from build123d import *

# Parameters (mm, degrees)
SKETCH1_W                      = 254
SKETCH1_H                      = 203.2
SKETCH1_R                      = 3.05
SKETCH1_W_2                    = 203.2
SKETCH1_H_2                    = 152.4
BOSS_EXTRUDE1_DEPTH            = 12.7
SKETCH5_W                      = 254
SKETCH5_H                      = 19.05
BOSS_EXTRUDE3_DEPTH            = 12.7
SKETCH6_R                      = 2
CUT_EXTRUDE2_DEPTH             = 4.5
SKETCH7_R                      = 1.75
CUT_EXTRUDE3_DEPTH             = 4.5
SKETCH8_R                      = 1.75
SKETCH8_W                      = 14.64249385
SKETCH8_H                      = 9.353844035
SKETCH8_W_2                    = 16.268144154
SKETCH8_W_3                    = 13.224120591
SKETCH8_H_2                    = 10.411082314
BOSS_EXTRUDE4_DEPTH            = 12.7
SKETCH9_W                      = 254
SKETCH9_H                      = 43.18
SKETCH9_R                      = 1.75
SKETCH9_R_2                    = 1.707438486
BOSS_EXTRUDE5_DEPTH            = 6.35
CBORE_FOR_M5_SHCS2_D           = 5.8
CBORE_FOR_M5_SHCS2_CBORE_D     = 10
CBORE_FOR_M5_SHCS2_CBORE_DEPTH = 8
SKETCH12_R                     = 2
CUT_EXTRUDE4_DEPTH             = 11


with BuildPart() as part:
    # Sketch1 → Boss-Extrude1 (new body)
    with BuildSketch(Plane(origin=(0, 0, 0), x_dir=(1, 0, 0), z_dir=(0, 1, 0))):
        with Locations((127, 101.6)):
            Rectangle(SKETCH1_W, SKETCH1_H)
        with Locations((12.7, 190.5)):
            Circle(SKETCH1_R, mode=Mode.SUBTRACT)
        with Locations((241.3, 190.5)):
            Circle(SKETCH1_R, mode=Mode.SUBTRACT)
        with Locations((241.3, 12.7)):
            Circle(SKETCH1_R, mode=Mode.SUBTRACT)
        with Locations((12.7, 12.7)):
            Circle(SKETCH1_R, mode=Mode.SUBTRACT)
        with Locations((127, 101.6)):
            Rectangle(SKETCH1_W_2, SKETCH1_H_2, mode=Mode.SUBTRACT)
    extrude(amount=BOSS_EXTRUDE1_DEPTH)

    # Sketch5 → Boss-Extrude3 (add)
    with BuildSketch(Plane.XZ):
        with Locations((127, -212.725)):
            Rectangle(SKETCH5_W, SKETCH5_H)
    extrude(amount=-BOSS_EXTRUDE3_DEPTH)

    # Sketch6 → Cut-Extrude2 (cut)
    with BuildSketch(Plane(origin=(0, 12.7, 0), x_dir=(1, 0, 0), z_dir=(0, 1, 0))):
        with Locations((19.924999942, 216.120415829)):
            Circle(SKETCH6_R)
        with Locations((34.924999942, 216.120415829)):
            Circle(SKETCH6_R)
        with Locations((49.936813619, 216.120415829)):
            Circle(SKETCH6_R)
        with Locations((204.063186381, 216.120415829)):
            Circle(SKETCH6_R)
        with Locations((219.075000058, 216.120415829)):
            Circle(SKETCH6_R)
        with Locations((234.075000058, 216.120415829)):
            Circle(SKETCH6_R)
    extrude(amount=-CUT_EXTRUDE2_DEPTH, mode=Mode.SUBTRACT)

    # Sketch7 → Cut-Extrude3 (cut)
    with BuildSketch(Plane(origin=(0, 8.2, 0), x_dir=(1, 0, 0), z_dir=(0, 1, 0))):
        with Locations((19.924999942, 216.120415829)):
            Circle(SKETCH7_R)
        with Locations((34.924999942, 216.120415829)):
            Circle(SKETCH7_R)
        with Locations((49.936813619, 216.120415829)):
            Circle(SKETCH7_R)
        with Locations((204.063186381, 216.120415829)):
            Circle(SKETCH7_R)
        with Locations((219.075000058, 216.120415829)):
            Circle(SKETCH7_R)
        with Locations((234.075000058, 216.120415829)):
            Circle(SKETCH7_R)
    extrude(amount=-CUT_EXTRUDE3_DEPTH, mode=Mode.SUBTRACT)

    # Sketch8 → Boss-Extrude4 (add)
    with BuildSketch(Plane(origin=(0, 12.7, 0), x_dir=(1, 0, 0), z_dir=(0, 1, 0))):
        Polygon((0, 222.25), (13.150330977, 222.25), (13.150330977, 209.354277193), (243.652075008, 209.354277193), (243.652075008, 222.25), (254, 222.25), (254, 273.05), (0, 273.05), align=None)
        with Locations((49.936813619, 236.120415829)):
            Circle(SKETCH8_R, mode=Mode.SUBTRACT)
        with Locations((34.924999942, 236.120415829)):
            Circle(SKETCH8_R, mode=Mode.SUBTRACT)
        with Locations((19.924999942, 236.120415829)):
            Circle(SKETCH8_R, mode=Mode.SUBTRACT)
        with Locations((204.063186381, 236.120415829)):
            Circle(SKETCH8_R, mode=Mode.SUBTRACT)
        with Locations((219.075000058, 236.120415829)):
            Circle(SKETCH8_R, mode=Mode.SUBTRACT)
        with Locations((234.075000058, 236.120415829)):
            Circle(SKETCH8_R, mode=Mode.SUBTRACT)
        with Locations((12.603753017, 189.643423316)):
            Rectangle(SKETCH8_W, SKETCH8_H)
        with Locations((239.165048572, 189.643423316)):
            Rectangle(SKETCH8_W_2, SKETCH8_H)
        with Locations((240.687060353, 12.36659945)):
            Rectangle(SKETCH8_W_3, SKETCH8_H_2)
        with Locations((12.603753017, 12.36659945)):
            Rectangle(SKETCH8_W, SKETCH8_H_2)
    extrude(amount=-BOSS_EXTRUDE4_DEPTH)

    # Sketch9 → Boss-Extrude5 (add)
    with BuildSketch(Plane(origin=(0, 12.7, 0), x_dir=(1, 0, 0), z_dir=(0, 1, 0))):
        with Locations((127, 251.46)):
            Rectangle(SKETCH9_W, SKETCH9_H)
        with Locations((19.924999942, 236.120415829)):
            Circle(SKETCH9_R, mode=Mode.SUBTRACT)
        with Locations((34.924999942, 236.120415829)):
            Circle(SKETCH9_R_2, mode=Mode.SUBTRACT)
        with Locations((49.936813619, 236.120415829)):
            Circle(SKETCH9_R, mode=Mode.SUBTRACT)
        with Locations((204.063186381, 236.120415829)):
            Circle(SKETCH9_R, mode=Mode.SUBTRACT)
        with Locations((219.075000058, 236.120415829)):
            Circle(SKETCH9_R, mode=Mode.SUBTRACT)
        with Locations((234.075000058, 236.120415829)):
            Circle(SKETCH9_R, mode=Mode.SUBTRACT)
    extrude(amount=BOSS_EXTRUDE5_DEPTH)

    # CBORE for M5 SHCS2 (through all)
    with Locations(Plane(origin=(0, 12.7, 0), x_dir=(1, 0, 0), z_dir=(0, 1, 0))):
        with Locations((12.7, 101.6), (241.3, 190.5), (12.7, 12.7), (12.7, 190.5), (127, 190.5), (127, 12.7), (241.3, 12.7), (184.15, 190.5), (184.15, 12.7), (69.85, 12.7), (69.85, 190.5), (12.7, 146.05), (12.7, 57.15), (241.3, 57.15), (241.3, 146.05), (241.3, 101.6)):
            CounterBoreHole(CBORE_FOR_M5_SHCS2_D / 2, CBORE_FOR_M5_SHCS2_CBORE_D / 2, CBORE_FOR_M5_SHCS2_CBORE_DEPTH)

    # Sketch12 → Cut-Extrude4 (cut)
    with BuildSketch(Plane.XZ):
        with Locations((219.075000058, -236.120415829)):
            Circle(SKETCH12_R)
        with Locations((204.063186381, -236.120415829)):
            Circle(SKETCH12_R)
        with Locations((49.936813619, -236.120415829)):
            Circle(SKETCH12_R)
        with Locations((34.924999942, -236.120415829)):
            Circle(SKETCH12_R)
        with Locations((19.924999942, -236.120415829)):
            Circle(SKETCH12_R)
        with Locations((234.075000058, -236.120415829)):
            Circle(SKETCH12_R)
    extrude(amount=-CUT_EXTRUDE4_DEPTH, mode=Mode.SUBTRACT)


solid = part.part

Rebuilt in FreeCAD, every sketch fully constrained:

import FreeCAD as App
import Part
import Sketcher
Q = App.Units.Quantity


def add_polygon(sketch, points):
    """Adds a closed chain of lines whose ends are joined by coincident constraints."""
    first, n = sketch.GeometryCount, len(points)
    for a, b in zip(points, points[1:] + points[:1]):
        sketch.addGeometry(Part.LineSegment(App.Vector(*a, 0), App.Vector(*b, 0)), False)
    for i in range(n):
        sketch.addConstraint(Sketcher.Constraint("Coincident", first + i, 2, first + (i + 1) % n, 1))

doc = App.newDocument("Part")
params = doc.addObject("Spreadsheet::Sheet", "Params")
for row, (alias, value) in enumerate([
    ("sketch1_width", "10 in"),
    ("sketch1_width2", "8 in"),
    ("sketch1_height", "6 in"),
    ("pad1_length", "0.5 in"),
    ("sketch2_width", "10 in"),
    ("sketch2_height", "0.75 in"),
    ("pad2_length", "0.5 in"),
    ("pocket1_length", "4.5 mm"),
    ("pocket2_length", "4.5 mm"),
    ("sketch5_width", "10 in"),
    ("sketch5_height", "2 in"),
    ("pad3_length", "0.5 in"),
    ("sketch6_width", "10 in"),
    ("sketch6_height", "1.7 in"),
    ("pad4_length", "0.25 in"),
    ("hole_diameter", "5.8 mm"),
    ("hole_cbore_diameter", "10 mm"),
    ("hole_cbore_depth", "8 mm"),
    ("pocket3_length", "11 mm"),
], start=1):
    params.set(f"A{row}", alias)
    params.set(f"B{row}", "=" + value)
    params.setAlias(f"B{row}", alias)

body = doc.addObject("PartDesign::Body", "Body")

sketch1 = doc.addObject("Sketcher::SketchObject", "Sketch")
body.addObject(sketch1)
sketch1.AttachmentSupport = (doc.XZ_Plane, [""])
sketch1.MapMode = "FlatFace"
add_polygon(sketch1, [(0, -203.2), (0, 0), (254, 0), (254, -203.2)])
sketch1.addGeometry(Part.Circle(App.Vector(12.7, -12.7, 0), App.Vector(0, 0, 1), 3), False)
sketch1.addGeometry(Part.Circle(App.Vector(241.3, -12.7, 0), App.Vector(0, 0, 1), 3), False)
sketch1.addGeometry(Part.Circle(App.Vector(12.7, -190.5, 0), App.Vector(0, 0, 1), 3), False)
add_polygon(sketch1, [(228.6, -25.4), (25.4, -25.4), (25.4, -177.8), (228.6, -177.8)])
sketch1.addGeometry(Part.Circle(App.Vector(241.3, -190.5, 0), App.Vector(0, 0, 1), 3), False)
sketch1.addConstraint([
    Sketcher.Constraint("Vertical", 0),
    Sketcher.Constraint("Horizontal", 1),
    Sketcher.Constraint("Vertical", 2),
    Sketcher.Constraint("Horizontal", 3),
    Sketcher.Constraint("Horizontal", 7),
    Sketcher.Constraint("Vertical", 8),
    Sketcher.Constraint("Horizontal", 9),
    Sketcher.Constraint("Vertical", 10),
    Sketcher.Constraint("Coincident", 0, 2, -1, 1),
    Sketcher.Constraint("Equal", 4, 5),
    Sketcher.Constraint("Equal", 5, 6),
    Sketcher.Constraint("Equal", 6, 11),
    Sketcher.Constraint("Horizontal", 4, 3, 5, 3),
    Sketcher.Constraint("Horizontal", 6, 3, 11, 3),
    Sketcher.Constraint("Vertical", 4, 3, 6, 3),
    Sketcher.Constraint("Vertical", 5, 3, 11, 3),
    Sketcher.Constraint("Equal", 9, 0),
    Sketcher.Constraint("DistanceX", 1, 1, 1, 2, Q("10 in")),
    Sketcher.Constraint("DistanceX", 7, 2, 7, 1, Q("8 in")),
    Sketcher.Constraint("DistanceY", 8, 2, 8, 1, Q("6 in")),
    Sketcher.Constraint("DistanceX", -1, 1, 7, 2, Q("1 in")),
    Sketcher.Constraint("DistanceY", 7, 2, -1, 1, Q("1 in")),
    Sketcher.Constraint("DistanceX", 4, 3, 5, 3, Q("9 in")),
    Sketcher.Constraint("DistanceY", 6, 3, 4, 3, Q("7 in")),
    Sketcher.Constraint("DistanceX", -1, 1, 4, 3, Q("0.5 in")),
    Sketcher.Constraint("DistanceY", 4, 3, -1, 1, Q("0.5 in")),
    Sketcher.Constraint("Diameter", 4, 6.1),
])
sketch1.setExpression("Constraints[25]", "Params.sketch1_width")
sketch1.setExpression("Constraints[26]", "Params.sketch1_width2")
sketch1.setExpression("Constraints[27]", "Params.sketch1_height")
pad1 = doc.addObject("PartDesign::Pad", "Pad")
body.addObject(pad1)
pad1.Profile = sketch1
pad1.setExpression("Length", "Params.pad1_length")
pad1.Reversed = True

sketch2 = doc.addObject("Sketcher::SketchObject", "Sketch001")
body.addObject(sketch2)
sketch2.AttachmentSupport = (doc.XZ_Plane, [""])
sketch2.MapMode = "FlatFace"
add_polygon(sketch2, [(0, -203), (0, -222), (254, -222), (254, -203)])
sketch2.addConstraint([
    Sketcher.Constraint("Vertical", 0),
    Sketcher.Constraint("Horizontal", 1),
    Sketcher.Constraint("Vertical", 2),
    Sketcher.Constraint("Horizontal", 3),
    Sketcher.Constraint("PointOnObject", 0, 2, -2),
    Sketcher.Constraint("DistanceX", 1, 1, 1, 2, Q("10 in")),
    Sketcher.Constraint("DistanceY", 2, 2, -1, 1, Q("8 in")),
    Sketcher.Constraint("DistanceY", 0, 2, 0, 1, Q("0.75 in")),
])
sketch2.setExpression("Constraints[9]", "Params.sketch2_width")
sketch2.setExpression("Constraints[11]", "Params.sketch2_height")
pad2 = doc.addObject("PartDesign::Pad", "Pad001")
body.addObject(pad2)
pad2.Profile = sketch2
pad2.setExpression("Length", "Params.pad2_length")
pad2.Reversed = True

sketch3 = doc.addObject("Sketcher::SketchObject", "Sketch002")
body.addObject(sketch3)
sketch3.AttachmentSupport = (doc.XZ_Plane, [""])
sketch3.MapMode = "FlatFace"
sketch3.AttachmentOffset = App.Placement(App.Vector(0, 0, -0.5 * 25.4), App.Rotation())
sketch3.addGeometry([
    Part.Circle(App.Vector(19.9, -216.1, 0), App.Vector(0, 0, 1), 2),
    Part.Circle(App.Vector(34.9, -216.1, 0), App.Vector(0, 0, 1), 2),
    Part.Circle(App.Vector(49.9, -216.1, 0), App.Vector(0, 0, 1), 2),
    Part.Circle(App.Vector(204.1, -216.1, 0), App.Vector(0, 0, 1), 2),
    Part.Circle(App.Vector(219.1, -216.1, 0), App.Vector(0, 0, 1), 2),
    Part.Circle(App.Vector(234.1, -216.1, 0), App.Vector(0, 0, 1), 2),
], False)
sketch3.addConstraint([
    Sketcher.Constraint("Equal", 0, 1),
    Sketcher.Constraint("Equal", 1, 2),
    Sketcher.Constraint("Equal", 2, 3),
    Sketcher.Constraint("Equal", 3, 4),
    Sketcher.Constraint("Equal", 4, 5),
    Sketcher.Constraint("Horizontal", 0, 3, 1, 3),
    Sketcher.Constraint("Horizontal", 1, 3, 2, 3),
    Sketcher.Constraint("Horizontal", 2, 3, 3, 3),
    Sketcher.Constraint("Horizontal", 3, 3, 4, 3),
    Sketcher.Constraint("Horizontal", 4, 3, 5, 3),
    Sketcher.Constraint("Diameter", 0, 4.0),
    Sketcher.Constraint("DistanceX", 1, 3, 4, 3, Q("7.25 in")),
    Sketcher.Constraint("DistanceX", -1, 1, 1, 3, Q("1.375 in")),
    Sketcher.Constraint("DistanceX", -1, 1, 0, 3, 19.925),
    Sketcher.Constraint("DistanceX", -1, 1, 5, 3, 234.075),
    Sketcher.Constraint("DistanceY", 0, 3, -1, 1, 216.120416),
    Sketcher.Constraint("DistanceX", -1, 1, 2, 3, 49.936814),
    Sketcher.Constraint("DistanceX", -1, 1, 3, 3, 204.063186),
])
pocket1 = doc.addObject("PartDesign::Pocket", "Pocket")
body.addObject(pocket1)
pocket1.Profile = sketch3
pocket1.setExpression("Length", "Params.pocket1_length")
pocket1.Reversed = True

sketch4 = doc.addObject("Sketcher::SketchObject", "Sketch003")
body.addObject(sketch4)
sketch4.AttachmentSupport = (doc.XZ_Plane, [""])
sketch4.MapMode = "FlatFace"
sketch4.AttachmentOffset = App.Placement(App.Vector(0, 0, -8.2), App.Rotation())
sketch4.addGeometry([
    Part.Circle(App.Vector(19.9, -216.1, 0), App.Vector(0, 0, 1), 1.8),
    Part.Circle(App.Vector(34.9, -216.1, 0), App.Vector(0, 0, 1), 1.8),
    Part.Circle(App.Vector(49.9, -216.1, 0), App.Vector(0, 0, 1), 1.8),
    Part.Circle(App.Vector(204.1, -216.1, 0), App.Vector(0, 0, 1), 1.8),
    Part.Circle(App.Vector(219.1, -216.1, 0), App.Vector(0, 0, 1), 1.8),
    Part.Circle(App.Vector(234.1, -216.1, 0), App.Vector(0, 0, 1), 1.8),
], False)
sketch4.addConstraint([
    Sketcher.Constraint("Equal", 0, 1),
    Sketcher.Constraint("Equal", 1, 2),
    Sketcher.Constraint("Equal", 2, 3),
    Sketcher.Constraint("Equal", 3, 4),
    Sketcher.Constraint("Equal", 4, 5),
    Sketcher.Constraint("Horizontal", 0, 3, 1, 3),
    Sketcher.Constraint("Horizontal", 1, 3, 2, 3),
    Sketcher.Constraint("Horizontal", 2, 3, 3, 3),
    Sketcher.Constraint("Horizontal", 3, 3, 4, 3),
    Sketcher.Constraint("Horizontal", 4, 3, 5, 3),
    Sketcher.Constraint("Diameter", 0, 3.5),
    Sketcher.Constraint("DistanceX", 1, 3, 4, 3, Q("7.25 in")),
    Sketcher.Constraint("DistanceX", -1, 1, 1, 3, Q("1.375 in")),
    Sketcher.Constraint("DistanceX", -1, 1, 0, 3, 19.925),
    Sketcher.Constraint("DistanceX", -1, 1, 5, 3, 234.075),
    Sketcher.Constraint("DistanceY", 0, 3, -1, 1, 216.120416),
    Sketcher.Constraint("DistanceX", -1, 1, 2, 3, 49.936814),
    Sketcher.Constraint("DistanceX", -1, 1, 3, 3, 204.063186),
])
pocket2 = doc.addObject("PartDesign::Pocket", "Pocket001")
body.addObject(pocket2)
pocket2.Profile = sketch4
pocket2.setExpression("Length", "Params.pocket2_length")
pocket2.Reversed = True

sketch5 = doc.addObject("Sketcher::SketchObject", "Sketch004")
body.addObject(sketch5)
sketch5.AttachmentSupport = (doc.XZ_Plane, [""])
sketch5.MapMode = "FlatFace"
sketch5.AttachmentOffset = App.Placement(App.Vector(0, 0, -0.5 * 25.4), App.Rotation())
add_polygon(sketch5, [(0, -222.2), (13.2, -222.2), (13.2, -209.4), (243.7, -209.4), (243.7, -222.2), (254, -222.2), (254, -273.1), (0, -273.1)])
sketch5.addGeometry(Part.Circle(App.Vector(19.9, -236.1, 0), App.Vector(0, 0, 1), 1.8), False)
sketch5.addGeometry(Part.Circle(App.Vector(34.9, -236.1, 0), App.Vector(0, 0, 1), 1.8), False)
sketch5.addGeometry(Part.Circle(App.Vector(49.9, -236.1, 0), App.Vector(0, 0, 1), 1.8), False)
sketch5.addGeometry(Part.Circle(App.Vector(204.1, -236.1, 0), App.Vector(0, 0, 1), 1.8), False)
sketch5.addGeometry(Part.Circle(App.Vector(219.1, -236.1, 0), App.Vector(0, 0, 1), 1.8), False)
sketch5.addGeometry(Part.Circle(App.Vector(234.1, -236.1, 0), App.Vector(0, 0, 1), 1.8), False)
add_polygon(sketch5, [(5.3, -194.3), (5.3, -185), (19.9, -185), (19.9, -194.3)])
add_polygon(sketch5, [(231, -194.3), (231, -185), (247.3, -185), (247.3, -194.3)])
add_polygon(sketch5, [(234.1, -17.6), (234.1, -7.2), (247.3, -7.2), (247.3, -17.6)])
add_polygon(sketch5, [(5.3, -17.6), (5.3, -7.2), (19.9, -7.2), (19.9, -17.6)])
sketch5.addConstraint([
    Sketcher.Constraint("Horizontal", 0),
    Sketcher.Constraint("Vertical", 1),
    Sketcher.Constraint("Horizontal", 2),
    Sketcher.Constraint("Vertical", 3),
    Sketcher.Constraint("Horizontal", 4),
    Sketcher.Constraint("Vertical", 5),
    Sketcher.Constraint("Horizontal", 6),
    Sketcher.Constraint("Vertical", 7),
    Sketcher.Constraint("Vertical", 14),
    Sketcher.Constraint("Horizontal", 15),
    Sketcher.Constraint("Vertical", 16),
    Sketcher.Constraint("Horizontal", 17),
    Sketcher.Constraint("Vertical", 18),
    Sketcher.Constraint("Horizontal", 19),
    Sketcher.Constraint("Vertical", 20),
    Sketcher.Constraint("Horizontal", 21),
    Sketcher.Constraint("Vertical", 22),
    Sketcher.Constraint("Horizontal", 23),
    Sketcher.Constraint("Vertical", 24),
    Sketcher.Constraint("Horizontal", 25),
    Sketcher.Constraint("Vertical", 26),
    Sketcher.Constraint("Horizontal", 27),
    Sketcher.Constraint("Vertical", 28),
    Sketcher.Constraint("Horizontal", 29),
    Sketcher.Constraint("Equal", 8, 9),
    Sketcher.Constraint("Equal", 9, 10),
    Sketcher.Constraint("Equal", 10, 11),
    Sketcher.Constraint("Equal", 11, 12),
    Sketcher.Constraint("Equal", 12, 13),
    Sketcher.Constraint("PointOnObject", 6, 2, -2),
    Sketcher.Constraint("Horizontal", 8, 3, 9, 3),
    Sketcher.Constraint("Horizontal", 9, 3, 10, 3),
    Sketcher.Constraint("Horizontal", 10, 3, 11, 3),
    Sketcher.Constraint("Horizontal", 11, 3, 12, 3),
    Sketcher.Constraint("Horizontal", 12, 3, 13, 3),
    Sketcher.Constraint("Horizontal", 0, 2, 3, 2),
    Sketcher.Constraint("Horizontal", 15, 2, 18, 2),
    Sketcher.Constraint("Horizontal", 17, 2, 20, 2),
    Sketcher.Constraint("Horizontal", 23, 2, 26, 2),
    Sketcher.Constraint("Horizontal", 25, 2, 28, 2),
    Sketcher.Constraint("Vertical", 8, 3, 15, 2),
    Sketcher.Constraint("Vertical", 13, 3, 22, 2),
    Sketcher.Constraint("Vertical", 20, 2, 23, 2),
    Sketcher.Constraint("Vertical", 17, 2, 26, 2),
    Sketcher.Constraint("Vertical", 16, 2, 27, 2),
    Sketcher.Constraint("DistanceX", 6, 2, 6, 1, Q("10 in")),
    Sketcher.Constraint("DistanceY", 5, 2, 5, 1, Q("2 in")),
    Sketcher.Constraint("Diameter", 8, 3.5),
    Sketcher.Constraint("DistanceY", 0, 2, -1, 1, Q("8.75 in")),
    Sketcher.Constraint("DistanceX", 9, 3, 12, 3, Q("7.25 in")),
    Sketcher.Constraint("DistanceX", -1, 1, 9, 3, Q("1.375 in")),
    Sketcher.Constraint("DistanceX", 0, 1, 0, 2, 13.150331),
    Sketcher.Constraint("DistanceX", 23, 1, 23, 2, 13.224121),
    Sketcher.Constraint("DistanceX", -1, 1, 8, 3, 19.925),
    Sketcher.Constraint("DistanceX", -1, 1, 13, 3, 234.075),
    Sketcher.Constraint("DistanceY", 14, 2, -1, 1, 184.966501),
    Sketcher.Constraint("DistanceX", 18, 2, 2, 2, 12.621099),
    Sketcher.Constraint("DistanceX", 2, 1, 2, 2, 230.501744),
    Sketcher.Constraint("DistanceX", 15, 1, 15, 2, 14.642494),
    Sketcher.Constraint("DistanceY", 1, 1, 1, 2, 12.895723),
    Sketcher.Constraint("DistanceY", 14, 1, 14, 2, 9.353844),
    Sketcher.Constraint("DistanceY", 22, 1, 22, 2, 10.411082),
    Sketcher.Constraint("DistanceY", 22, 2, -1, 1, 7.161058),
    Sketcher.Constraint("DistanceY", 8, 3, 1, 2, 26.766139),
    Sketcher.Constraint("DistanceX", 11, 3, 2, 2, 39.588889),
    Sketcher.Constraint("DistanceX", 10, 3, 2, 2, 193.715261),
])
sketch5.setExpression("Constraints[69]", "Params.sketch5_width")
sketch5.setExpression("Constraints[70]", "Params.sketch5_height")
pad3 = doc.addObject("PartDesign::Pad", "Pad002")
body.addObject(pad3)
pad3.Profile = sketch5
pad3.setExpression("Length", "Params.pad3_length")

sketch6 = doc.addObject("Sketcher::SketchObject", "Sketch005")
body.addObject(sketch6)
sketch6.AttachmentSupport = (doc.XZ_Plane, [""])
sketch6.MapMode = "FlatFace"
sketch6.AttachmentOffset = App.Placement(App.Vector(0, 0, -0.5 * 25.4), App.Rotation())
add_polygon(sketch6, [(0, -273.1), (0, -229.9), (254, -229.9), (254, -273.1)])
sketch6.addGeometry(Part.Circle(App.Vector(19.9, -236.1, 0), App.Vector(0, 0, 1), 1.8), False)
sketch6.addGeometry(Part.Circle(App.Vector(34.9, -236.1, 0), App.Vector(0, 0, 1), 1.7), False)
sketch6.addGeometry(Part.Circle(App.Vector(49.9, -236.1, 0), App.Vector(0, 0, 1), 1.8), False)
sketch6.addGeometry(Part.Circle(App.Vector(204.1, -236.1, 0), App.Vector(0, 0, 1), 1.8), False)
sketch6.addGeometry(Part.Circle(App.Vector(219.1, -236.1, 0), App.Vector(0, 0, 1), 1.8), False)
sketch6.addGeometry(Part.Circle(App.Vector(234.1, -236.1, 0), App.Vector(0, 0, 1), 1.8), False)
sketch6.addConstraint([
    Sketcher.Constraint("Vertical", 0),
    Sketcher.Constraint("Horizontal", 1),
    Sketcher.Constraint("Vertical", 2),
    Sketcher.Constraint("Horizontal", 3),
    Sketcher.Constraint("Equal", 4, 6),
    Sketcher.Constraint("Equal", 6, 7),
    Sketcher.Constraint("Equal", 7, 8),
    Sketcher.Constraint("Equal", 8, 9),
    Sketcher.Constraint("PointOnObject", 0, 2, -2),
    Sketcher.Constraint("Horizontal", 4, 3, 5, 3),
    Sketcher.Constraint("Horizontal", 5, 3, 6, 3),
    Sketcher.Constraint("Horizontal", 6, 3, 7, 3),
    Sketcher.Constraint("Horizontal", 7, 3, 8, 3),
    Sketcher.Constraint("Horizontal", 8, 3, 9, 3),
    Sketcher.Constraint("DistanceX", 1, 1, 1, 2, Q("10 in")),
    Sketcher.Constraint("DistanceY", 0, 1, 0, 2, Q("1.7 in")),
    Sketcher.Constraint("Diameter", 4, 3.5),
    Sketcher.Constraint("DistanceY", 0, 2, -1, 1, Q("9.05 in")),
    Sketcher.Constraint("DistanceX", 5, 3, 8, 3, Q("7.25 in")),
    Sketcher.Constraint("DistanceX", -1, 1, 5, 3, Q("1.375 in")),
    Sketcher.Constraint("Diameter", 5, 3.414877),
    Sketcher.Constraint("DistanceX", -1, 1, 4, 3, 19.925),
    Sketcher.Constraint("DistanceX", -1, 1, 9, 3, 234.075),
    Sketcher.Constraint("DistanceY", 4, 3, -1, 1, 236.120416),
    Sketcher.Constraint("DistanceX", -1, 1, 6, 3, 49.936814),
    Sketcher.Constraint("DistanceX", -1, 1, 7, 3, 204.063186),
])
sketch6.setExpression("Constraints[18]", "Params.sketch6_width")
sketch6.setExpression("Constraints[19]", "Params.sketch6_height")
pad4 = doc.addObject("PartDesign::Pad", "Pad003")
body.addObject(pad4)
pad4.Profile = sketch6
pad4.setExpression("Length", "Params.pad4_length")
pad4.Reversed = True

sketch7 = doc.addObject("Sketcher::SketchObject", "Sketch006")
body.addObject(sketch7)
sketch7.AttachmentSupport = (doc.XZ_Plane, [""])
sketch7.MapMode = "FlatFace"
sketch7.AttachmentOffset = App.Placement(App.Vector(0, 0, -0.5 * 25.4), App.Rotation())
sketch7.addGeometry([
    Part.Circle(App.Vector(12.7, -101.6, 0), App.Vector(0, 0, 1), 2.9),
    Part.Circle(App.Vector(241.3, -190.5, 0), App.Vector(0, 0, 1), 2.9),
    Part.Circle(App.Vector(12.7, -12.7, 0), App.Vector(0, 0, 1), 2.9),
    Part.Circle(App.Vector(12.7, -190.5, 0), App.Vector(0, 0, 1), 2.9),
    Part.Circle(App.Vector(127, -190.5, 0), App.Vector(0, 0, 1), 2.9),
    Part.Circle(App.Vector(127, -12.7, 0), App.Vector(0, 0, 1), 2.9),
    Part.Circle(App.Vector(241.3, -12.7, 0), App.Vector(0, 0, 1), 2.9),
    Part.Circle(App.Vector(184.2, -190.5, 0), App.Vector(0, 0, 1), 2.9),
    Part.Circle(App.Vector(184.2, -12.7, 0), App.Vector(0, 0, 1), 2.9),
    Part.Circle(App.Vector(69.8, -12.7, 0), App.Vector(0, 0, 1), 2.9),
    Part.Circle(App.Vector(69.8, -190.5, 0), App.Vector(0, 0, 1), 2.9),
    Part.Circle(App.Vector(12.7, -146.1, 0), App.Vector(0, 0, 1), 2.9),
    Part.Circle(App.Vector(12.7, -57.1, 0), App.Vector(0, 0, 1), 2.9),
    Part.Circle(App.Vector(241.3, -57.1, 0), App.Vector(0, 0, 1), 2.9),
    Part.Circle(App.Vector(241.3, -146.1, 0), App.Vector(0, 0, 1), 2.9),
    Part.Circle(App.Vector(241.3, -101.6, 0), App.Vector(0, 0, 1), 2.9),
], False)
sketch7.addConstraint([
    Sketcher.Constraint("Equal", 0, 1),
    Sketcher.Constraint("Equal", 1, 2),
    Sketcher.Constraint("Equal", 2, 3),
    Sketcher.Constraint("Equal", 3, 4),
    Sketcher.Constraint("Equal", 4, 5),
    Sketcher.Constraint("Equal", 5, 6),
    Sketcher.Constraint("Equal", 6, 7),
    Sketcher.Constraint("Equal", 7, 8),
    Sketcher.Constraint("Equal", 8, 9),
    Sketcher.Constraint("Equal", 9, 10),
    Sketcher.Constraint("Equal", 10, 11),
    Sketcher.Constraint("Equal", 11, 12),
    Sketcher.Constraint("Equal", 12, 13),
    Sketcher.Constraint("Equal", 13, 14),
    Sketcher.Constraint("Equal", 14, 15),
    Sketcher.Constraint("Horizontal", 1, 3, 3, 3),
    Sketcher.Constraint("Horizontal", 3, 3, 4, 3),
    Sketcher.Constraint("Horizontal", 2, 3, 5, 3),
    Sketcher.Constraint("Horizontal", 5, 3, 6, 3),
    Sketcher.Constraint("Horizontal", 4, 3, 7, 3),
    Sketcher.Constraint("Horizontal", 6, 3, 8, 3),
    Sketcher.Constraint("Horizontal", 8, 3, 9, 3),
    Sketcher.Constraint("Horizontal", 7, 3, 10, 3),
    Sketcher.Constraint("Horizontal", 12, 3, 13, 3),
    Sketcher.Constraint("Horizontal", 11, 3, 14, 3),
    Sketcher.Constraint("Horizontal", 0, 3, 15, 3),
    Sketcher.Constraint("Vertical", 0, 3, 2, 3),
    Sketcher.Constraint("Vertical", 2, 3, 3, 3),
    Sketcher.Constraint("Vertical", 4, 3, 5, 3),
    Sketcher.Constraint("Vertical", 1, 3, 6, 3),
    Sketcher.Constraint("Vertical", 7, 3, 8, 3),
    Sketcher.Constraint("Vertical", 9, 3, 10, 3),
    Sketcher.Constraint("Vertical", 3, 3, 11, 3),
    Sketcher.Constraint("Vertical", 11, 3, 12, 3),
    Sketcher.Constraint("Vertical", 6, 3, 13, 3),
    Sketcher.Constraint("Vertical", 13, 3, 14, 3),
    Sketcher.Constraint("Vertical", 14, 3, 15, 3),
    Sketcher.Constraint("DistanceY", 0, 3, -1, 1, Q("4 in")),
    Sketcher.Constraint("DistanceX", -1, 1, 4, 3, Q("5 in")),
    Sketcher.Constraint("DistanceX", 0, 3, 1, 3, Q("9 in")),
    Sketcher.Constraint("DistanceY", 1, 3, 2, 3, Q("7 in")),
    Sketcher.Constraint("DistanceX", -1, 1, 0, 3, Q("0.5 in")),
    Sketcher.Constraint("DistanceY", 1, 3, -1, 1, Q("7.5 in")),
    Sketcher.Constraint("DistanceX", 9, 3, 8, 3, Q("4.5 in")),
    Sketcher.Constraint("DistanceY", 11, 3, 12, 3, Q("3.5 in")),
    Sketcher.Constraint("Diameter", 0, 5.8),
    Sketcher.Constraint("DistanceX", -1, 1, 7, 3, Q("7.25 in")),
    Sketcher.Constraint("DistanceY", 11, 3, -1, 1, Q("5.75 in")),
])
doc.recompute()
hole = doc.addObject("PartDesign::Hole", "Hole")
body.addObject(hole)
hole.Profile = sketch7
hole.ThreadType = "None"
hole.setExpression("Diameter", "Params.hole_diameter")
hole.DepthType = "ThroughAll"
hole.HoleCutType = "Counterbore"
hole.setExpression("HoleCutDiameter", "Params.hole_cbore_diameter")
hole.setExpression("HoleCutDepth", "Params.hole_cbore_depth")
hole.Reversed = True

sketch8 = doc.addObject("Sketcher::SketchObject", "Sketch007")
body.addObject(sketch8)
sketch8.AttachmentSupport = (doc.XZ_Plane, [""])
sketch8.MapMode = "FlatFace"
sketch8.addGeometry([
    Part.Circle(App.Vector(219.1, -236.1, 0), App.Vector(0, 0, 1), 2),
    Part.Circle(App.Vector(204.1, -236.1, 0), App.Vector(0, 0, 1), 2),
    Part.Circle(App.Vector(49.9, -236.1, 0), App.Vector(0, 0, 1), 2),
    Part.Circle(App.Vector(34.9, -236.1, 0), App.Vector(0, 0, 1), 2),
    Part.Circle(App.Vector(19.9, -236.1, 0), App.Vector(0, 0, 1), 2),
    Part.Circle(App.Vector(234.1, -236.1, 0), App.Vector(0, 0, 1), 2),
], False)
sketch8.addConstraint([
    Sketcher.Constraint("Equal", 0, 1),
    Sketcher.Constraint("Equal", 1, 2),
    Sketcher.Constraint("Equal", 2, 3),
    Sketcher.Constraint("Equal", 3, 4),
    Sketcher.Constraint("Equal", 4, 5),
    Sketcher.Constraint("Horizontal", 0, 3, 1, 3),
    Sketcher.Constraint("Horizontal", 1, 3, 2, 3),
    Sketcher.Constraint("Horizontal", 2, 3, 3, 3),
    Sketcher.Constraint("Horizontal", 3, 3, 4, 3),
    Sketcher.Constraint("Horizontal", 4, 3, 5, 3),
    Sketcher.Constraint("Diameter", 0, 4.0),
    Sketcher.Constraint("DistanceX", 3, 3, 0, 3, Q("7.25 in")),
    Sketcher.Constraint("DistanceX", -1, 1, 0, 3, Q("8.625 in")),
    Sketcher.Constraint("DistanceX", -1, 1, 4, 3, 19.925),
    Sketcher.Constraint("DistanceX", -1, 1, 5, 3, 234.075),
    Sketcher.Constraint("DistanceY", 0, 3, -1, 1, 236.120416),
    Sketcher.Constraint("DistanceX", -1, 1, 1, 3, 204.063186),
    Sketcher.Constraint("DistanceX", -1, 1, 2, 3, 49.936814),
])
pocket3 = doc.addObject("PartDesign::Pocket", "Pocket002")
body.addObject(pocket3)
pocket3.Profile = sketch8
pocket3.setExpression("Length", "Params.pocket3_length")

doc.recompute()
